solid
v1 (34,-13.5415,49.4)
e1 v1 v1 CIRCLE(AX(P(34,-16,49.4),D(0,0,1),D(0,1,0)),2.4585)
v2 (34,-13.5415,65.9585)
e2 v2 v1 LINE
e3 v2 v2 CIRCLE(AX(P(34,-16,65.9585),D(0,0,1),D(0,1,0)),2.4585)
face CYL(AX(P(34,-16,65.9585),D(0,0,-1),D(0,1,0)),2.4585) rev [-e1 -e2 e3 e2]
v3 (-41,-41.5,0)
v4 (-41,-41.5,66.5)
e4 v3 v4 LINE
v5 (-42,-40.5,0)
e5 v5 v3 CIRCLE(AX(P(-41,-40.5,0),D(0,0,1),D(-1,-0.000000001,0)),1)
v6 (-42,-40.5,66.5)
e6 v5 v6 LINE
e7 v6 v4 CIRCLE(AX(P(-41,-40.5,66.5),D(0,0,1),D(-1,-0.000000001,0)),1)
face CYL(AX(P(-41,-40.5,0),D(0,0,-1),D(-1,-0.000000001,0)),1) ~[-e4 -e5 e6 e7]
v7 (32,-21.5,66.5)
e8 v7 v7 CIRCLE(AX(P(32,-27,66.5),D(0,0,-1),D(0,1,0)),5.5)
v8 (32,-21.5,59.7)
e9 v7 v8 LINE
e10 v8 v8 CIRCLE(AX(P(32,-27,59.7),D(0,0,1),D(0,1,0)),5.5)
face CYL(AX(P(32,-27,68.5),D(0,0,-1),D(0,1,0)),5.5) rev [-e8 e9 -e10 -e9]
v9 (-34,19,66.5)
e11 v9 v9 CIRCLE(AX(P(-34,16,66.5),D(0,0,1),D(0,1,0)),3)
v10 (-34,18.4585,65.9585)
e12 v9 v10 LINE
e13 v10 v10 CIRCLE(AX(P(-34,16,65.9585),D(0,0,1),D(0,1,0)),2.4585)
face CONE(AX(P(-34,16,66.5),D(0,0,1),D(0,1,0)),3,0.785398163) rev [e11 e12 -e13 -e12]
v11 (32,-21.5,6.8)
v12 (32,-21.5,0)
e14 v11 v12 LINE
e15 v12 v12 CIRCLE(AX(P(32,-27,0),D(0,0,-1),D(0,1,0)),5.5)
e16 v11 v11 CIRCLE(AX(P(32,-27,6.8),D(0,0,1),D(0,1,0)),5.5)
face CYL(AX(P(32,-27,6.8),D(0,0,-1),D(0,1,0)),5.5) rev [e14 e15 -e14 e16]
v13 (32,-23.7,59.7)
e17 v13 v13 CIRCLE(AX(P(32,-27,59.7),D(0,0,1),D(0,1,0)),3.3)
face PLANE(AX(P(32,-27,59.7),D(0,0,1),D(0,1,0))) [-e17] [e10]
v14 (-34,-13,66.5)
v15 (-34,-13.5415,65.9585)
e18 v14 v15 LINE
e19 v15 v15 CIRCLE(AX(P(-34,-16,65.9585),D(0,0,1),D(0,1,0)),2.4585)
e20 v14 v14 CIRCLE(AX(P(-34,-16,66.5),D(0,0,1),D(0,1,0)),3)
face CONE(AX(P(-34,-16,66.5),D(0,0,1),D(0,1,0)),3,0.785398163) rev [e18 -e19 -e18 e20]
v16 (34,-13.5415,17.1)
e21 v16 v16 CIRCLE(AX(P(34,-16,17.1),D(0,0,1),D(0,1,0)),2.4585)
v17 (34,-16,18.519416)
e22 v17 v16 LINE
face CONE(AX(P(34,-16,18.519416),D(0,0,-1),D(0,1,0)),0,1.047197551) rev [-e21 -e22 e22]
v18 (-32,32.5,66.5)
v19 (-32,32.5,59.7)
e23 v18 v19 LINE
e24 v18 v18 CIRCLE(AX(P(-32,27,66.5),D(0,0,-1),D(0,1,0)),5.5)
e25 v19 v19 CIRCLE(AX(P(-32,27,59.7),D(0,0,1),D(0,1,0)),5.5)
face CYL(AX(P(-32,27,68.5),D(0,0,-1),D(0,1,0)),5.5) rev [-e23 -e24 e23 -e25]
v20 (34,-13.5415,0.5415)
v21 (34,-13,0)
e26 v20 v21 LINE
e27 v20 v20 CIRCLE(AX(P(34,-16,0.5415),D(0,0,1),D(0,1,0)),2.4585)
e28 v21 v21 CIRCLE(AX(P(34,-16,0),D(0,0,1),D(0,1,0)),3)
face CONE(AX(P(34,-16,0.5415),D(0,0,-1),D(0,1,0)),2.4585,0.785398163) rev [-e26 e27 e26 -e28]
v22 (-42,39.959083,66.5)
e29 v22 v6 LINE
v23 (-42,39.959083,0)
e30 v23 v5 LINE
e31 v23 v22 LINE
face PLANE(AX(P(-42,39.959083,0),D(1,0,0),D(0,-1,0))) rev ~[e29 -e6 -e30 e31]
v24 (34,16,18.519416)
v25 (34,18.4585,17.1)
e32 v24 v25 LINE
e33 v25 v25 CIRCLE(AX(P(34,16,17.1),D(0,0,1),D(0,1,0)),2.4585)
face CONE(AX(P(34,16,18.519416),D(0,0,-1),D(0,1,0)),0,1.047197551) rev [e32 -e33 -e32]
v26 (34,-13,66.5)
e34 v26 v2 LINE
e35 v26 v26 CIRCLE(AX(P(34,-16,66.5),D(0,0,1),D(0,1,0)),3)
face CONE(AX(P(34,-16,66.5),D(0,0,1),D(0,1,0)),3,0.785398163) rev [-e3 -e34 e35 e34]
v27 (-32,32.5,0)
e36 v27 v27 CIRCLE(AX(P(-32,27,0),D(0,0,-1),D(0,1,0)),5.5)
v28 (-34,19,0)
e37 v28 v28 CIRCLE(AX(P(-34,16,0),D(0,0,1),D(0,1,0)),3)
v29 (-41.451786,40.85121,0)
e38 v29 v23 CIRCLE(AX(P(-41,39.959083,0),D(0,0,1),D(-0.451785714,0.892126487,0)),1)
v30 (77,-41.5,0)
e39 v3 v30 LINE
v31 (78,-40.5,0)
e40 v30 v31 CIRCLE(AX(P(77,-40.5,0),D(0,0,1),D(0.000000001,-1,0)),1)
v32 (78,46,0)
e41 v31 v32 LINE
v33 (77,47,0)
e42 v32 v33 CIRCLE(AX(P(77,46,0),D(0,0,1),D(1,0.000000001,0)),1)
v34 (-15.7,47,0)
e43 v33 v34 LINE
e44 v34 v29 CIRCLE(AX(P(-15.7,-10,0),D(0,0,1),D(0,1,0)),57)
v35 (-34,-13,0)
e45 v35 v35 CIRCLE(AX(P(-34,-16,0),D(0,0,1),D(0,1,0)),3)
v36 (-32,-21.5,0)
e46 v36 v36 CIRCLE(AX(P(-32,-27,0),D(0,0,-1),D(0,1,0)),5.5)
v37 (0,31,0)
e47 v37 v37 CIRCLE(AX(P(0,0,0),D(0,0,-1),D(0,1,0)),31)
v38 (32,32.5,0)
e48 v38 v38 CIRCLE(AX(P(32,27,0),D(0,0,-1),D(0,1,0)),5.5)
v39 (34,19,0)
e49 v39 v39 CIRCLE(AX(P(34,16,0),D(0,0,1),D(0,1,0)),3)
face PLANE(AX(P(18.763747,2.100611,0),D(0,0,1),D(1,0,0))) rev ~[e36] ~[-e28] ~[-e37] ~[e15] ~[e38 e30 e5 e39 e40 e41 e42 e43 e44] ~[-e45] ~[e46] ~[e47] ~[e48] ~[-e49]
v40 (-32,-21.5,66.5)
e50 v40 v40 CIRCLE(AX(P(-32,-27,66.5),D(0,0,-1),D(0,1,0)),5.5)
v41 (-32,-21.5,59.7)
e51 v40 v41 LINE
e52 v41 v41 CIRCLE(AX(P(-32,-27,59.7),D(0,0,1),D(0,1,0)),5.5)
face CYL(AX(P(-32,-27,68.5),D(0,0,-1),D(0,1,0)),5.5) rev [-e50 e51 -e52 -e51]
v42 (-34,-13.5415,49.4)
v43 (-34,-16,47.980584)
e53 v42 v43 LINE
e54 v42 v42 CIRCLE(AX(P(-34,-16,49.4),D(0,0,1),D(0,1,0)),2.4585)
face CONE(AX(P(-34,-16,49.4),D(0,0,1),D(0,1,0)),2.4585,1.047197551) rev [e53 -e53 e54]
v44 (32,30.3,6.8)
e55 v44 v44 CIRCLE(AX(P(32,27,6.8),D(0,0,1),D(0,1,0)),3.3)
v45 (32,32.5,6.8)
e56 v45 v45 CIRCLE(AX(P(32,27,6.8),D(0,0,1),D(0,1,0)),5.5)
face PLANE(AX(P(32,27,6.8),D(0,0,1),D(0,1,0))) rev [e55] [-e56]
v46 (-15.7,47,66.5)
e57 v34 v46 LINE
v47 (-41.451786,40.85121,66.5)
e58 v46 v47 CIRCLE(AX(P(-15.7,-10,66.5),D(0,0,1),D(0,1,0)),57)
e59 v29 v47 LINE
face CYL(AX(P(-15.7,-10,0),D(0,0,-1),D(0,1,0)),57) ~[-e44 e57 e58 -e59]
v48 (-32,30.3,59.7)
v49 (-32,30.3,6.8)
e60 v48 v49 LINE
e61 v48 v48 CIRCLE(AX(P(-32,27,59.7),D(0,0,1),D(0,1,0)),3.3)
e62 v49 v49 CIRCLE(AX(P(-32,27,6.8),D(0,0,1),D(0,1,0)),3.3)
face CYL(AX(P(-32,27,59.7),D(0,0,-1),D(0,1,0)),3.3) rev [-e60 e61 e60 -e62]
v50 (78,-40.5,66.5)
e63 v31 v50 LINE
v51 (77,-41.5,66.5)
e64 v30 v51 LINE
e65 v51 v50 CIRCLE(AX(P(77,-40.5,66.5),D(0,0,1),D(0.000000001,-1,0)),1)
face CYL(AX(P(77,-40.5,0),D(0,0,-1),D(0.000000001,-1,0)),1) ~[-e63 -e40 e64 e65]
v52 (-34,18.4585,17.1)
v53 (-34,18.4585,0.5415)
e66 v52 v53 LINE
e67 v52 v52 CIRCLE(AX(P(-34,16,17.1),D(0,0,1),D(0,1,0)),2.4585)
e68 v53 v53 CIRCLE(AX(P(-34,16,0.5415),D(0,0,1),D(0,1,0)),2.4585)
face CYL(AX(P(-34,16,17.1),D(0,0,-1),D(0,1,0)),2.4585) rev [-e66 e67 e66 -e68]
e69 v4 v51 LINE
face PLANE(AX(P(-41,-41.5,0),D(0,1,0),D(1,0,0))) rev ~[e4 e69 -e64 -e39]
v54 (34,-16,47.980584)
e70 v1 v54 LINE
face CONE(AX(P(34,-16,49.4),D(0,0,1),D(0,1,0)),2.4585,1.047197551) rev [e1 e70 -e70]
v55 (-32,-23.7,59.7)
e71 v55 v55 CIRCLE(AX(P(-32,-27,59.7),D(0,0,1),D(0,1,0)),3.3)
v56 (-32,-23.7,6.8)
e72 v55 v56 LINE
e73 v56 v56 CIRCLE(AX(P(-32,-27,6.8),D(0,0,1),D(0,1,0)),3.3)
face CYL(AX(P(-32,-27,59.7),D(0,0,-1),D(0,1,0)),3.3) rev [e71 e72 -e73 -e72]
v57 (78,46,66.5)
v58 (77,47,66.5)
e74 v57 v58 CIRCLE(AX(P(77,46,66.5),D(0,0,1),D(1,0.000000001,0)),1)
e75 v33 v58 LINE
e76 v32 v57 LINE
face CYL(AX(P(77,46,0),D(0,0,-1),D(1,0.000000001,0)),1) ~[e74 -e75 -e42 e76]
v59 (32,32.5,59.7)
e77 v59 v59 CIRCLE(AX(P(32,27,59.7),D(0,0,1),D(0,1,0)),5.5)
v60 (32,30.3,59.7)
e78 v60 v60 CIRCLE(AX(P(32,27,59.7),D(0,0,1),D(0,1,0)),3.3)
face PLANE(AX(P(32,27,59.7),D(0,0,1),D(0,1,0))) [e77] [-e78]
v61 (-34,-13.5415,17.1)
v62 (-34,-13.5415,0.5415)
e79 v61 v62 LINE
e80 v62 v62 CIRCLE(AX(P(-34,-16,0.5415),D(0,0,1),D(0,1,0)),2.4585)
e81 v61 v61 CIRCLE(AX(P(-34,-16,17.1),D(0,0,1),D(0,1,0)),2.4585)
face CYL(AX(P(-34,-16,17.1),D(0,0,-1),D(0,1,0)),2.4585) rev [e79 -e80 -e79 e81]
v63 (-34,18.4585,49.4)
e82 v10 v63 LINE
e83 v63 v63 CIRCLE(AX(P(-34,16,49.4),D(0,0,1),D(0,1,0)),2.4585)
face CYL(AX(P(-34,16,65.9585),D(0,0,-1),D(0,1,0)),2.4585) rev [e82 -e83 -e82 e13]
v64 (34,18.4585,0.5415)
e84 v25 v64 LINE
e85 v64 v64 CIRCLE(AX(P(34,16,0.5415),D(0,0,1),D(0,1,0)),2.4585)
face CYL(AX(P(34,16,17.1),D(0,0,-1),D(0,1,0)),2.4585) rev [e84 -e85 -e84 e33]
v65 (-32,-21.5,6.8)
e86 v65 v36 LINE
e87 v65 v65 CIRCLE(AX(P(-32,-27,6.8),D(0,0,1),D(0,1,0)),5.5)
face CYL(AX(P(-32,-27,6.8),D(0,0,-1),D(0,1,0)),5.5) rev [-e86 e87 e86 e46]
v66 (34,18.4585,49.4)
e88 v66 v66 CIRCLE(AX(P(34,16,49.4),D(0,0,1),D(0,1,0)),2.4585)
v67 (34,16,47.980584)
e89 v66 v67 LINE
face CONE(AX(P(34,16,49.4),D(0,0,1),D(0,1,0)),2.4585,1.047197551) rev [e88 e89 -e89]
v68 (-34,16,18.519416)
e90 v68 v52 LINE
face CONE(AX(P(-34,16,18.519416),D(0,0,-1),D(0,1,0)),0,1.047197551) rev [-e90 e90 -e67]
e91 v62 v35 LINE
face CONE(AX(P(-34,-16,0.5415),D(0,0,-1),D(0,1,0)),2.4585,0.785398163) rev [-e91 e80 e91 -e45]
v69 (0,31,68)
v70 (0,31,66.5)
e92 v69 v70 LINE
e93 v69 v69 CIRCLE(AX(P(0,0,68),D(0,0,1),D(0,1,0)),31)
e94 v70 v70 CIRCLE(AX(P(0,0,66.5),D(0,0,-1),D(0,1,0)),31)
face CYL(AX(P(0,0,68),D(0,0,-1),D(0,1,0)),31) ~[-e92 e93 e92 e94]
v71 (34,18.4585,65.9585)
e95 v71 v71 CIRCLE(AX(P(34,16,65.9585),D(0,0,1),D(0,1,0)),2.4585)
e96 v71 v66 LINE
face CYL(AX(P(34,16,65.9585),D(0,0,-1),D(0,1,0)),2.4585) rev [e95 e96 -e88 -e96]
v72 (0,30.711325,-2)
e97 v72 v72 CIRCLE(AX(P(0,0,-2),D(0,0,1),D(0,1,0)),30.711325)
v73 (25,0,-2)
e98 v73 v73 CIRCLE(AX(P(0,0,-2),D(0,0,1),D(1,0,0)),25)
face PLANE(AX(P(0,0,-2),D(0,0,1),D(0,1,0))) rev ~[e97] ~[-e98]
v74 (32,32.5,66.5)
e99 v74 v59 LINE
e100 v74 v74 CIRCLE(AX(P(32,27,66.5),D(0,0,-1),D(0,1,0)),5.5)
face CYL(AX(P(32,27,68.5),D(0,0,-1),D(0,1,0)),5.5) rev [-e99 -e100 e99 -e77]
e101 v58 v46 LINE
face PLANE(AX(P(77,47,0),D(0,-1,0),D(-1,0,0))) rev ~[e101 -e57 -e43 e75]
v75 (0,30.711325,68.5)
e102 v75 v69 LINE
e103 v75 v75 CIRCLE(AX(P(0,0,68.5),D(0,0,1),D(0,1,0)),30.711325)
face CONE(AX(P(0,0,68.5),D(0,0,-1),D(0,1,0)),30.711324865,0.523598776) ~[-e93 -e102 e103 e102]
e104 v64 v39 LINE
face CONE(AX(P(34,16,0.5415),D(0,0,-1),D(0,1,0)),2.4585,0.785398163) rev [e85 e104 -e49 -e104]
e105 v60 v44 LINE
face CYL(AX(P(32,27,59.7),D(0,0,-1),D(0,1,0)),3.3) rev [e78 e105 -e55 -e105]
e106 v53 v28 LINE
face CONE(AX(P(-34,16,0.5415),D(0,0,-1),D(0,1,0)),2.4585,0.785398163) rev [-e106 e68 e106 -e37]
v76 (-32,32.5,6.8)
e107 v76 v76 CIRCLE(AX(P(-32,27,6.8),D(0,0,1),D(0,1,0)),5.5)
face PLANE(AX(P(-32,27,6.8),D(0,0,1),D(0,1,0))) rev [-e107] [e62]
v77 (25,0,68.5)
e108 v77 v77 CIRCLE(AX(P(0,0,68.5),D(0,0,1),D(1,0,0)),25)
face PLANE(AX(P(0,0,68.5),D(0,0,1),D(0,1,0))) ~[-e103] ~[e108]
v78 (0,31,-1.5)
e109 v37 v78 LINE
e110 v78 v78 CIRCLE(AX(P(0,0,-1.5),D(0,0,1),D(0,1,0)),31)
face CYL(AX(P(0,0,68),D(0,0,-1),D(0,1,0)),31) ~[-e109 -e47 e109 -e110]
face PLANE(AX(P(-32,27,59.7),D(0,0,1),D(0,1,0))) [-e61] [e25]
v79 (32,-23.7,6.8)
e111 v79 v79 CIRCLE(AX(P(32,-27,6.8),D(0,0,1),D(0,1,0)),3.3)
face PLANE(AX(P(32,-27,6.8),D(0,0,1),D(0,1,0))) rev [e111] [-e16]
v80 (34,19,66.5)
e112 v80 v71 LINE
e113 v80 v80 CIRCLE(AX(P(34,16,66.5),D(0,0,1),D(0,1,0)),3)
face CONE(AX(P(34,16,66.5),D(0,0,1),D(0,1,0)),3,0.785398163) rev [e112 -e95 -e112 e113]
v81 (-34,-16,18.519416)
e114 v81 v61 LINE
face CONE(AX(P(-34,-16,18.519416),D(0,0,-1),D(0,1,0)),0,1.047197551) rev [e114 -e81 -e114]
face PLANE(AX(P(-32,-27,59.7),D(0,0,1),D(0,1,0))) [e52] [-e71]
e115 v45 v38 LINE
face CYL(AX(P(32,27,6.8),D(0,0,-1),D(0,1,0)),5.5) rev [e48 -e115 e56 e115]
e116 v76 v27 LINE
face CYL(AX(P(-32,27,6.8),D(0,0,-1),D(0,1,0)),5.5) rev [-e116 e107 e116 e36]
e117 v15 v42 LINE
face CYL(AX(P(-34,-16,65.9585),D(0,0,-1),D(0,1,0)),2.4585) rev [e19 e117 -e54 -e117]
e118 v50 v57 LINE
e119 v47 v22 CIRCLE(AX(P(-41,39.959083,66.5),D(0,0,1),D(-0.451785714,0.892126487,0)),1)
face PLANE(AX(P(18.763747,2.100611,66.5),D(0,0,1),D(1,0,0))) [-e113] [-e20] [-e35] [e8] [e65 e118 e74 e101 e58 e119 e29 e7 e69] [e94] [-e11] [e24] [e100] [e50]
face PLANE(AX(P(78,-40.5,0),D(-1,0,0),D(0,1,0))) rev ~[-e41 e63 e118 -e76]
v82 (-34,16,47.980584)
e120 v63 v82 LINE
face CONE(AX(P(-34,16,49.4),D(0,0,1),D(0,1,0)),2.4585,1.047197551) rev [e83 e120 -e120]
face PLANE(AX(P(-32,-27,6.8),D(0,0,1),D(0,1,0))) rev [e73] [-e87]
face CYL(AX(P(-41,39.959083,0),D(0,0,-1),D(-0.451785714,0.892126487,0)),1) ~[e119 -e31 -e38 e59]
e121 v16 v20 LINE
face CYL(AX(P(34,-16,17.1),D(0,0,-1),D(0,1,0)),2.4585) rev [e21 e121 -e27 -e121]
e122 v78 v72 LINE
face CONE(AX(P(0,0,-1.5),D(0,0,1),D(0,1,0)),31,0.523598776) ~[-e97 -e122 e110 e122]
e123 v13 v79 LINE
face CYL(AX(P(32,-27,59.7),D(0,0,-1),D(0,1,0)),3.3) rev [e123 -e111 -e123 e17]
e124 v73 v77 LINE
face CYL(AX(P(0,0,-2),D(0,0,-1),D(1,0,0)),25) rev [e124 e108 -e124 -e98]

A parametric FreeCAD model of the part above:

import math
import FreeCAD as App
import Part
import Sketcher
Q = App.Units.Quantity


def add_polygon(sketch, points):
    """Adds a closed chain of lines whose ends are joined by coincident constraints."""
    first, n = sketch.GeometryCount, len(points)
    for a, b in zip(points, points[1:] + points[:1]):
        sketch.addGeometry(Part.LineSegment(App.Vector(*a, 0), App.Vector(*b, 0)), False)
    for i in range(n):
        sketch.addConstraint(Sketcher.Constraint("Coincident", first + i, 2, first + (i + 1) % n, 1))

doc = App.newDocument("Part")
body = doc.addObject("PartDesign::Body", "Body")

# Sketch on XY plane
sketch1 = doc.addObject("Sketcher::SketchObject", "Sketch")
body.addObject(sketch1)
sketch1.AttachmentSupport = (doc.XY_Plane, [""])
sketch1.MapMode = "FlatFace"
sketch1.addGeometry(Part.LineSegment(App.Vector(-42, 40, 0), App.Vector(-42, -40.5, 0)), False)
sketch1.addGeometry(Part.ArcOfCircle(Part.Circle(App.Vector(-41, -40.5, 0), App.Vector(0, 0, 1), 1), math.radians(-180), math.radians(-90)), False)
sketch1.addGeometry(Part.LineSegment(App.Vector(-41, -41.5, 0), App.Vector(77, -41.5, 0)), False)
sketch1.addGeometry(Part.ArcOfCircle(Part.Circle(App.Vector(77, -40.5, 0), App.Vector(0, 0, 1), 1), math.radians(-90), math.radians(0)), False)
sketch1.addGeometry(Part.LineSegment(App.Vector(78, -40.5, 0), App.Vector(78, 46, 0)), False)
sketch1.addGeometry(Part.ArcOfCircle(Part.Circle(App.Vector(77, 46, 0), App.Vector(0, 0, 1), 1), math.radians(0), math.radians(90)), False)
sketch1.addGeometry(Part.LineSegment(App.Vector(77, 47, 0), App.Vector(-15.7, 47, 0)), False)
sketch1.addGeometry(Part.ArcOfCircle(Part.Circle(App.Vector(-15.7, -10, 0), App.Vector(0, 0, 1), 57), math.radians(90), math.radians(117)), False)
sketch1.addGeometry(Part.ArcOfCircle(Part.Circle(App.Vector(-41, 40, 0), App.Vector(0, 0, 1), 1), math.radians(117), math.radians(180)), False)
sketch1.addConstraint(Sketcher.Constraint("Tangent", 0, 2, 1, 1))
sketch1.addConstraint(Sketcher.Constraint("Tangent", 1, 2, 2, 1))
sketch1.addConstraint(Sketcher.Constraint("Tangent", 2, 2, 3, 1))
sketch1.addConstraint(Sketcher.Constraint("Tangent", 3, 2, 4, 1))
sketch1.addConstraint(Sketcher.Constraint("Tangent", 4, 2, 5, 1))
sketch1.addConstraint(Sketcher.Constraint("Tangent", 5, 2, 6, 1))
sketch1.addConstraint(Sketcher.Constraint("Tangent", 6, 2, 7, 1))
sketch1.addConstraint(Sketcher.Constraint("Tangent", 7, 2, 8, 1))
sketch1.addConstraint(Sketcher.Constraint("Tangent", 8, 2, 0, 1))
sketch1.addConstraint(Sketcher.Constraint("Vertical", 0))
sketch1.addConstraint(Sketcher.Constraint("Horizontal", 2))
sketch1.addConstraint(Sketcher.Constraint("Vertical", 4))
sketch1.addConstraint(Sketcher.Constraint("Horizontal", 6))
sketch1.addConstraint(Sketcher.Constraint("Equal", 1, 3))
sketch1.addConstraint(Sketcher.Constraint("Equal", 3, 5))
sketch1.addConstraint(Sketcher.Constraint("Equal", 5, 8))
sketch1.addConstraint(Sketcher.Constraint("Radius", 1, Q("1 mm")))
sketch1.addConstraint(Sketcher.Constraint("Radius", 7, Q("57 mm")))
sketch1.addConstraint(Sketcher.Constraint("DistanceX", 2, 1, 2, 2, Q("118 mm")))
sketch1.addConstraint(Sketcher.Constraint("DistanceX", 6, 2, 6, 1, Q("92.7 mm")))
sketch1.addConstraint(Sketcher.Constraint("DistanceY", 4, 1, 4, 2, Q("86.5 mm")))
sketch1.addConstraint(Sketcher.Constraint("DistanceX", 1, 3, -1, 1, Q("41 mm")))
sketch1.addConstraint(Sketcher.Constraint("DistanceY", -1, 1, 5, 3, Q("46 mm")))
pad1 = doc.addObject("PartDesign::Pad", "Pad")
body.addObject(pad1)
pad1.Profile = sketch1
pad1.Length = 66.5

# Sketch on YZ plane
sketch2 = doc.addObject("Sketcher::SketchObject", "Sketch001")
body.addObject(sketch2)
sketch2.AttachmentSupport = (doc.YZ_Plane, [""])
sketch2.MapMode = "FlatFace"
add_polygon(sketch2, [(30.7, 68.5), (0, 68.5), (0, -2), (30.7, -2), (31, -1.5), (31, 68)])  # lines 0-5
sketch2.addConstraint(Sketcher.Constraint("Horizontal", 0))
sketch2.addConstraint(Sketcher.Constraint("Vertical", 1))
sketch2.addConstraint(Sketcher.Constraint("Horizontal", 2))
sketch2.addConstraint(Sketcher.Constraint("Vertical", 4))
sketch2.addConstraint(Sketcher.Constraint("PointOnObject", 0, 2, -2))
sketch2.addConstraint(Sketcher.Constraint("Vertical", 2, 2, 5, 2))
sketch2.addConstraint(Sketcher.Constraint("Equal", 3, 5))
sketch2.addConstraint(Sketcher.Constraint("Angle", 3, Q("60 deg")))
sketch2.addConstraint(Sketcher.Constraint("DistanceY", 1, 2, 1, 1, Q("70.5 mm")))
sketch2.addConstraint(Sketcher.Constraint("DistanceY", 4, 1, 4, 2, Q("69.5 mm")))
sketch2.addConstraint(Sketcher.Constraint("DistanceY", 1, 2, -1, 1, Q("2 mm")))
sketch2.addConstraint(Sketcher.Constraint("DistanceX", -1, 1, 3, 2, Q("31 mm")))
revolution = doc.addObject("PartDesign::Revolution", "Revolution")
body.addObject(revolution)
revolution.Profile = sketch2
revolution.ReferenceAxis = (sketch2, ["V_Axis"])
revolution.Angle = 360

# Sketch on XY plane
sketch3 = doc.addObject("Sketcher::SketchObject", "Sketch002")
body.addObject(sketch3)
sketch3.AttachmentSupport = (doc.XY_Plane, [""])
sketch3.MapMode = "FlatFace"
sketch3.AttachmentOffset = App.Placement(App.Vector(0, 0, -2), App.Rotation())
sketch3.addGeometry(Part.Circle(App.Vector(0, 0, 0), App.Vector(0, 0, 1), 25), False)
sketch3.addConstraint(Sketcher.Constraint("Coincident", 0, 3, -1, 1))
sketch3.addConstraint(Sketcher.Constraint("Diameter", 0, Q("50 mm")))
pocket1 = doc.addObject("PartDesign::Pocket", "Pocket")
body.addObject(pocket1)
pocket1.Profile = sketch3
pocket1.Length = 70.5
pocket1.Reversed = True

# Sketch on YZ plane
sketch4 = doc.addObject("Sketcher::SketchObject", "Sketch003")
body.addObject(sketch4)
sketch4.AttachmentSupport = (doc.YZ_Plane, [""])
sketch4.MapMode = "FlatFace"
sketch4.AttachmentOffset = App.Placement(App.Vector(0, 0, -32), App.Rotation())
add_polygon(sketch4, [(32.5, 68.5), (27, 68.5), (27, -2), (32.5, -2), (32.5, 6.8), (30.3, 6.8), (30.3, 59.7), (32.5, 59.7)])  # lines 0-7
sketch4.addGeometry(Part.LineSegment(App.Vector(27, -2, 0), App.Vector(27, 68.5, 0)), True)  # axis
sketch4.addConstraint(Sketcher.Constraint("Horizontal", 0))
sketch4.addConstraint(Sketcher.Constraint("Vertical", 1))
sketch4.addConstraint(Sketcher.Constraint("Horizontal", 2))
sketch4.addConstraint(Sketcher.Constraint("Vertical", 3))
sketch4.addConstraint(Sketcher.Constraint("Horizontal", 4))
sketch4.addConstraint(Sketcher.Constraint("Vertical", 5))
sketch4.addConstraint(Sketcher.Constraint("Horizontal", 6))
sketch4.addConstraint(Sketcher.Constraint("Vertical", 7))
sketch4.addConstraint(Sketcher.Constraint("Vertical", 8))
sketch4.addConstraint(Sketcher.Constraint("Coincident", 8, 1, 1, 2))
sketch4.addConstraint(Sketcher.Constraint("Horizontal", 7, 2, 8, 2))
sketch4.addConstraint(Sketcher.Constraint("Vertical", 3, 2, 6, 2))
sketch4.addConstraint(Sketcher.Constraint("Equal", 3, 7))
sketch4.addConstraint(Sketcher.Constraint("DistanceX", 0, 2, 0, 1, Q("5.5 mm")))
sketch4.addConstraint(Sketcher.Constraint("DistanceX", 4, 2, 4, 1, Q("2.2 mm")))
sketch4.addConstraint(Sketcher.Constraint("DistanceY", 1, 2, 1, 1, Q("70.5 mm")))
sketch4.addConstraint(Sketcher.Constraint("DistanceY", 3, 1, 3, 2, Q("8.8 mm")))
sketch4.addConstraint(Sketcher.Constraint("DistanceX", -1, 1, 0, 2, Q("27 mm")))
sketch4.addConstraint(Sketcher.Constraint("DistanceY", 1, 2, -1, 1, Q("2 mm")))
groove = doc.addObject("PartDesign::Groove", "Groove")
body.addObject(groove)
groove.Profile = sketch4
groove.ReferenceAxis = (sketch4, ["Axis0"])
groove.Angle = 360

# Sketch on YZ plane
sketch5 = doc.addObject("Sketcher::SketchObject", "Sketch004")
body.addObject(sketch5)
sketch5.AttachmentSupport = (doc.YZ_Plane, [""])
sketch5.MapMode = "FlatFace"
sketch5.AttachmentOffset = App.Placement(App.Vector(0, 0, -32), App.Rotation())
add_polygon(sketch5, [(-21.5, 68.5), (-27, 68.5), (-27, -2), (-21.5, -2), (-21.5, 6.8), (-23.7, 6.8), (-23.7, 59.7), (-21.5, 59.7)])  # lines 0-7
sketch5.addGeometry(Part.LineSegment(App.Vector(-27, -2, 0), App.Vector(-27, 68.5, 0)), True)  # axis
sketch5.addConstraint(Sketcher.Constraint("Horizontal", 0))
sketch5.addConstraint(Sketcher.Constraint("Vertical", 1))
sketch5.addConstraint(Sketcher.Constraint("Horizontal", 2))
sketch5.addConstraint(Sketcher.Constraint("Vertical", 3))
sketch5.addConstraint(Sketcher.Constraint("Horizontal", 4))
sketch5.addConstraint(Sketcher.Constraint("Vertical", 5))
sketch5.addConstraint(Sketcher.Constraint("Horizontal", 6))
sketch5.addConstraint(Sketcher.Constraint("Vertical", 7))
sketch5.addConstraint(Sketcher.Constraint("Vertical", 8))
sketch5.addConstraint(Sketcher.Constraint("Coincident", 8, 1, 1, 2))
sketch5.addConstraint(Sketcher.Constraint("Horizontal", 7, 2, 8, 2))
sketch5.addConstraint(Sketcher.Constraint("Vertical", 3, 2, 6, 2))
sketch5.addConstraint(Sketcher.Constraint("Equal", 3, 7))
sketch5.addConstraint(Sketcher.Constraint("DistanceX", 0, 2, 0, 1, Q("5.5 mm")))
sketch5.addConstraint(Sketcher.Constraint("DistanceX", 4, 2, 4, 1, Q("2.2 mm")))
sketch5.addConstraint(Sketcher.Constraint("DistanceY", 1, 2, 1, 1, Q("70.5 mm")))
sketch5.addConstraint(Sketcher.Constraint("DistanceY", 3, 1, 3, 2, Q("8.8 mm")))
sketch5.addConstraint(Sketcher.Constraint("DistanceX", 0, 2, -1, 1, Q("27 mm")))
sketch5.addConstraint(Sketcher.Constraint("DistanceY", 1, 2, -1, 1, Q("2 mm")))
groove2 = doc.addObject("PartDesign::Groove", "Groove001")
body.addObject(groove2)
groove2.Profile = sketch5
groove2.ReferenceAxis = (sketch5, ["Axis0"])
groove2.Angle = 360

# Sketch on YZ plane
sketch6 = doc.addObject("Sketcher::SketchObject", "Sketch005")
body.addObject(sketch6)
sketch6.AttachmentSupport = (doc.YZ_Plane, [""])
sketch6.MapMode = "FlatFace"
sketch6.AttachmentOffset = App.Placement(App.Vector(0, 0, 32), App.Rotation())
add_polygon(sketch6, [(-21.5, 68.5), (-27, 68.5), (-27, -2), (-21.5, -2), (-21.5, 6.8), (-23.7, 6.8), (-23.7, 59.7), (-21.5, 59.7)])  # lines 0-7
sketch6.addGeometry(Part.LineSegment(App.Vector(-27, -2, 0), App.Vector(-27, 68.5, 0)), True)  # axis
sketch6.addConstraint(Sketcher.Constraint("Horizontal", 0))
sketch6.addConstraint(Sketcher.Constraint("Vertical", 1))
sketch6.addConstraint(Sketcher.Constraint("Horizontal", 2))
sketch6.addConstraint(Sketcher.Constraint("Vertical", 3))
sketch6.addConstraint(Sketcher.Constraint("Horizontal", 4))
sketch6.addConstraint(Sketcher.Constraint("Vertical", 5))
sketch6.addConstraint(Sketcher.Constraint("Horizontal", 6))
sketch6.addConstraint(Sketcher.Constraint("Vertical", 7))
sketch6.addConstraint(Sketcher.Constraint("Vertical", 8))
sketch6.addConstraint(Sketcher.Constraint("Coincident", 8, 1, 1, 2))
sketch6.addConstraint(Sketcher.Constraint("Horizontal", 7, 2, 8, 2))
sketch6.addConstraint(Sketcher.Constraint("Vertical", 3, 2, 6, 2))
sketch6.addConstraint(Sketcher.Constraint("Equal", 3, 7))
sketch6.addConstraint(Sketcher.Constraint("DistanceX", 0, 2, 0, 1, Q("5.5 mm")))
sketch6.addConstraint(Sketcher.Constraint("DistanceX", 4, 2, 4, 1, Q("2.2 mm")))
sketch6.addConstraint(Sketcher.Constraint("DistanceY", 1, 2, 1, 1, Q("70.5 mm")))
sketch6.addConstraint(Sketcher.Constraint("DistanceY", 3, 1, 3, 2, Q("8.8 mm")))
sketch6.addConstraint(Sketcher.Constraint("DistanceX", 0, 2, -1, 1, Q("27 mm")))
sketch6.addConstraint(Sketcher.Constraint("DistanceY", 1, 2, -1, 1, Q("2 mm")))
groove3 = doc.addObject("PartDesign::Groove", "Groove002")
body.addObject(groove3)
groove3.Profile = sketch6
groove3.ReferenceAxis = (sketch6, ["Axis0"])
groove3.Angle = 360

# Sketch on YZ plane
sketch7 = doc.addObject("Sketcher::SketchObject", "Sketch006")
body.addObject(sketch7)
sketch7.AttachmentSupport = (doc.YZ_Plane, [""])
sketch7.MapMode = "FlatFace"
sketch7.AttachmentOffset = App.Placement(App.Vector(0, 0, 32), App.Rotation())
add_polygon(sketch7, [(32.5, 68.5), (27, 68.5), (27, -2), (32.5, -2), (32.5, 6.8), (30.3, 6.8), (30.3, 59.7), (32.5, 59.7)])  # lines 0-7
sketch7.addGeometry(Part.LineSegment(App.Vector(27, -2, 0), App.Vector(27, 68.5, 0)), True)  # axis
sketch7.addConstraint(Sketcher.Constraint("Horizontal", 0))
sketch7.addConstraint(Sketcher.Constraint("Vertical", 1))
sketch7.addConstraint(Sketcher.Constraint("Horizontal", 2))
sketch7.addConstraint(Sketcher.Constraint("Vertical", 3))
sketch7.addConstraint(Sketcher.Constraint("Horizontal", 4))
sketch7.addConstraint(Sketcher.Constraint("Vertical", 5))
sketch7.addConstraint(Sketcher.Constraint("Horizontal", 6))
sketch7.addConstraint(Sketcher.Constraint("Vertical", 7))
sketch7.addConstraint(Sketcher.Constraint("Vertical", 8))
sketch7.addConstraint(Sketcher.Constraint("Coincident", 8, 1, 1, 2))
sketch7.addConstraint(Sketcher.Constraint("Horizontal", 7, 2, 8, 2))
sketch7.addConstraint(Sketcher.Constraint("Vertical", 3, 2, 6, 2))
sketch7.addConstraint(Sketcher.Constraint("Equal", 3, 7))
sketch7.addConstraint(Sketcher.Constraint("DistanceX", 0, 2, 0, 1, Q("5.5 mm")))
sketch7.addConstraint(Sketcher.Constraint("DistanceX", 4, 2, 4, 1, Q("2.2 mm")))
sketch7.addConstraint(Sketcher.Constraint("DistanceY", 1, 2, 1, 1, Q("70.5 mm")))
sketch7.addConstraint(Sketcher.Constraint("DistanceY", 3, 1, 3, 2, Q("8.8 mm")))
sketch7.addConstraint(Sketcher.Constraint("DistanceX", -1, 1, 0, 2, Q("27 mm")))
sketch7.addConstraint(Sketcher.Constraint("DistanceY", 1, 2, -1, 1, Q("2 mm")))
groove4 = doc.addObject("PartDesign::Groove", "Groove003")
body.addObject(groove4)
groove4.Profile = sketch7
groove4.ReferenceAxis = (sketch7, ["Axis0"])
groove4.Angle = 360

# Sketch on YZ plane
sketch8 = doc.addObject("Sketcher::SketchObject", "Sketch007")
body.addObject(sketch8)
sketch8.AttachmentSupport = (doc.YZ_Plane, [""])
sketch8.MapMode = "FlatFace"
sketch8.AttachmentOffset = App.Placement(App.Vector(0, 0, 34), App.Rotation())
add_polygon(sketch8, [(18.5, 17.1), (16, 18.5), (16, 0), (19, 0), (18.5, 0.5)])  # lines 0-4
sketch8.addGeometry(Part.LineSegment(App.Vector(16, 0, 0), App.Vector(16, 18.5, 0)), True)  # axis
sketch8.addConstraint(Sketcher.Constraint("Vertical", 1))
sketch8.addConstraint(Sketcher.Constraint("Horizontal", 2))
sketch8.addConstraint(Sketcher.Constraint("Vertical", 4))
sketch8.addConstraint(Sketcher.Constraint("Vertical", 5))
sketch8.addConstraint(Sketcher.Constraint("Coincident", 5, 1, 1, 2))
sketch8.addConstraint(Sketcher.Constraint("PointOnObject", 1, 2, -1))
sketch8.addConstraint(Sketcher.Constraint("Equal", 1, 5))
sketch8.addConstraint(Sketcher.Constraint("DistanceX", 2, 1, 2, 2, Q("3 mm")))
sketch8.addConstraint(Sketcher.Constraint("Angle", 0, Q("150 deg")))
sketch8.addConstraint(Sketcher.Constraint("Angle", 3, Q("135 deg")))
sketch8.addConstraint(Sketcher.Constraint("DistanceX", -1, 1, 0, 2, Q("16 mm")))
sketch8.addConstraint(Sketcher.Constraint("DistanceY", -1, 1, 4, 2, Q("17.1 mm")))
sketch8.addConstraint(Sketcher.Constraint("DistanceY", 4, 1, 4, 2, Q("16.5585 mm")))
groove5 = doc.addObject("PartDesign::Groove", "Groove004")
body.addObject(groove5)
groove5.Profile = sketch8
groove5.ReferenceAxis = (sketch8, ["Axis0"])
groove5.Angle = 360

# Sketch on YZ plane
sketch9 = doc.addObject("Sketcher::SketchObject", "Sketch008")
body.addObject(sketch9)
sketch9.AttachmentSupport = (doc.YZ_Plane, [""])
sketch9.MapMode = "FlatFace"
sketch9.AttachmentOffset = App.Placement(App.Vector(0, 0, 34), App.Rotation())
add_polygon(sketch9, [(-13.5, 17.1), (-16, 18.5), (-16, 0), (-13, 0), (-13.5, 0.5)])  # lines 0-4
sketch9.addGeometry(Part.LineSegment(App.Vector(-16, 0, 0), App.Vector(-16, 18.5, 0)), True)  # axis
sketch9.addConstraint(Sketcher.Constraint("Vertical", 1))
sketch9.addConstraint(Sketcher.Constraint("Horizontal", 2))
sketch9.addConstraint(Sketcher.Constraint("Vertical", 4))
sketch9.addConstraint(Sketcher.Constraint("Vertical", 5))
sketch9.addConstraint(Sketcher.Constraint("Coincident", 5, 1, 1, 2))
sketch9.addConstraint(Sketcher.Constraint("PointOnObject", 1, 2, -1))
sketch9.addConstraint(Sketcher.Constraint("Equal", 1, 5))
sketch9.addConstraint(Sketcher.Constraint("DistanceX", 2, 1, 2, 2, Q("3 mm")))
sketch9.addConstraint(Sketcher.Constraint("Angle", 0, Q("150 deg")))
sketch9.addConstraint(Sketcher.Constraint("Angle", 3, Q("135 deg")))
sketch9.addConstraint(Sketcher.Constraint("DistanceX", 0, 2, -1, 1, Q("16 mm")))
sketch9.addConstraint(Sketcher.Constraint("DistanceY", -1, 1, 4, 2, Q("17.1 mm")))
sketch9.addConstraint(Sketcher.Constraint("DistanceY", 4, 1, 4, 2, Q("16.5585 mm")))
groove6 = doc.addObject("PartDesign::Groove", "Groove005")
body.addObject(groove6)
groove6.Profile = sketch9
groove6.ReferenceAxis = (sketch9, ["Axis0"])
groove6.Angle = 360

# Sketch on YZ plane
sketch10 = doc.addObject("Sketcher::SketchObject", "Sketch009")
body.addObject(sketch10)
sketch10.AttachmentSupport = (doc.YZ_Plane, [""])
sketch10.MapMode = "FlatFace"
sketch10.AttachmentOffset = App.Placement(App.Vector(0, 0, -34), App.Rotation())
add_polygon(sketch10, [(18.5, 17.1), (16, 18.5), (16, 0), (19, 0), (18.5, 0.5)])  # lines 0-4
sketch10.addGeometry(Part.LineSegment(App.Vector(16, 0, 0), App.Vector(16, 18.5, 0)), True)  # axis
sketch10.addConstraint(Sketcher.Constraint("Vertical", 1))
sketch10.addConstraint(Sketcher.Constraint("Horizontal", 2))
sketch10.addConstraint(Sketcher.Constraint("Vertical", 4))
sketch10.addConstraint(Sketcher.Constraint("Vertical", 5))
sketch10.addConstraint(Sketcher.Constraint("Coincident", 5, 1, 1, 2))
sketch10.addConstraint(Sketcher.Constraint("PointOnObject", 1, 2, -1))
sketch10.addConstraint(Sketcher.Constraint("Equal", 1, 5))
sketch10.addConstraint(Sketcher.Constraint("DistanceX", 2, 1, 2, 2, Q("3 mm")))
sketch10.addConstraint(Sketcher.Constraint("Angle", 0, Q("150 deg")))
sketch10.addConstraint(Sketcher.Constraint("Angle", 3, Q("135 deg")))
sketch10.addConstraint(Sketcher.Constraint("DistanceX", -1, 1, 0, 2, Q("16 mm")))
sketch10.addConstraint(Sketcher.Constraint("DistanceY", -1, 1, 4, 2, Q("17.1 mm")))
sketch10.addConstraint(Sketcher.Constraint("DistanceY", 4, 1, 4, 2, Q("16.5585 mm")))
groove7 = doc.addObject("PartDesign::Groove", "Groove006")
body.addObject(groove7)
groove7.Profile = sketch10
groove7.ReferenceAxis = (sketch10, ["Axis0"])
groove7.Angle = 360

# Sketch on YZ plane
sketch11 = doc.addObject("Sketcher::SketchObject", "Sketch010")
body.addObject(sketch11)
sketch11.AttachmentSupport = (doc.YZ_Plane, [""])
sketch11.MapMode = "FlatFace"
sketch11.AttachmentOffset = App.Placement(App.Vector(0, 0, -34), App.Rotation())
add_polygon(sketch11, [(-13.5, 17.1), (-16, 18.5), (-16, 0), (-13, 0), (-13.5, 0.5)])  # lines 0-4
sketch11.addGeometry(Part.LineSegment(App.Vector(-16, 0, 0), App.Vector(-16, 18.5, 0)), True)  # axis
sketch11.addConstraint(Sketcher.Constraint("Vertical", 1))
sketch11.addConstraint(Sketcher.Constraint("Horizontal", 2))
sketch11.addConstraint(Sketcher.Constraint("Vertical", 4))
sketch11.addConstraint(Sketcher.Constraint("Vertical", 5))
sketch11.addConstraint(Sketcher.Constraint("Coincident", 5, 1, 1, 2))
sketch11.addConstraint(Sketcher.Constraint("PointOnObject", 1, 2, -1))
sketch11.addConstraint(Sketcher.Constraint("Equal", 1, 5))
sketch11.addConstraint(Sketcher.Constraint("DistanceX", 2, 1, 2, 2, Q("3 mm")))
sketch11.addConstraint(Sketcher.Constraint("Angle", 0, Q("150 deg")))
sketch11.addConstraint(Sketcher.Constraint("Angle", 3, Q("135 deg")))
sketch11.addConstraint(Sketcher.Constraint("DistanceX", 0, 2, -1, 1, Q("16 mm")))
sketch11.addConstraint(Sketcher.Constraint("DistanceY", -1, 1, 4, 2, Q("17.1 mm")))
sketch11.addConstraint(Sketcher.Constraint("DistanceY", 4, 1, 4, 2, Q("16.5585 mm")))
groove8 = doc.addObject("PartDesign::Groove", "Groove007")
body.addObject(groove8)
groove8.Profile = sketch11
groove8.ReferenceAxis = (sketch11, ["Axis0"])
groove8.Angle = 360

# Sketch on YZ plane
sketch12 = doc.addObject("Sketcher::SketchObject", "Sketch011")
body.addObject(sketch12)
sketch12.AttachmentSupport = (doc.YZ_Plane, [""])
sketch12.MapMode = "FlatFace"
sketch12.AttachmentOffset = App.Placement(App.Vector(0, 0, -34), App.Rotation())
add_polygon(sketch12, [(19, 66.5), (16, 66.5), (16, 48), (18.5, 49.4), (18.5, 66)])  # lines 0-4
sketch12.addGeometry(Part.LineSegment(App.Vector(16, 48, 0), App.Vector(16, 66.5, 0)), True)  # axis
sketch12.addConstraint(Sketcher.Constraint("Horizontal", 0))
sketch12.addConstraint(Sketcher.Constraint("Vertical", 1))
sketch12.addConstraint(Sketcher.Constraint("Vertical", 3))
sketch12.addConstraint(Sketcher.Constraint("Vertical", 5))
sketch12.addConstraint(Sketcher.Constraint("Coincident", 5, 1, 1, 2))
sketch12.addConstraint(Sketcher.Constraint("Horizontal", 4, 2, 5, 2))
sketch12.addConstraint(Sketcher.Constraint("DistanceX", 0, 2, 0, 1, Q("3 mm")))
sketch12.addConstraint(Sketcher.Constraint("Angle", 2, Q("30 deg")))
sketch12.addConstraint(Sketcher.Constraint("Angle", 4, Q("45 deg")))
sketch12.addConstraint(Sketcher.Constraint("DistanceX", -1, 1, 0, 2, Q("16 mm")))
sketch12.addConstraint(Sketcher.Constraint("DistanceY", -1, 1, 0, 2, Q("66.5 mm")))
sketch12.addConstraint(Sketcher.Constraint("DistanceY", -1, 1, 2, 2, Q("49.4 mm")))
sketch12.addConstraint(Sketcher.Constraint("DistanceY", 3, 1, 3, 2, Q("16.5585 mm")))
groove9 = doc.addObject("PartDesign::Groove", "Groove008")
body.addObject(groove9)
groove9.Profile = sketch12
groove9.ReferenceAxis = (sketch12, ["Axis0"])
groove9.Angle = 360

# Sketch on YZ plane
sketch13 = doc.addObject("Sketcher::SketchObject", "Sketch012")
body.addObject(sketch13)
sketch13.AttachmentSupport = (doc.YZ_Plane, [""])
sketch13.MapMode = "FlatFace"
sketch13.AttachmentOffset = App.Placement(App.Vector(0, 0, -34), App.Rotation())
add_polygon(sketch13, [(-13, 66.5), (-16, 66.5), (-16, 48), (-13.5, 49.4), (-13.5, 66)])  # lines 0-4
sketch13.addGeometry(Part.LineSegment(App.Vector(-16, 48, 0), App.Vector(-16, 66.5, 0)), True)  # axis
sketch13.addConstraint(Sketcher.Constraint("Horizontal", 0))
sketch13.addConstraint(Sketcher.Constraint("Vertical", 1))
sketch13.addConstraint(Sketcher.Constraint("Vertical", 3))
sketch13.addConstraint(Sketcher.Constraint("Vertical", 5))
sketch13.addConstraint(Sketcher.Constraint("Coincident", 5, 1, 1, 2))
sketch13.addConstraint(Sketcher.Constraint("Horizontal", 4, 2, 5, 2))
sketch13.addConstraint(Sketcher.Constraint("DistanceX", 0, 2, 0, 1, Q("3 mm")))
sketch13.addConstraint(Sketcher.Constraint("Angle", 2, Q("30 deg")))
sketch13.addConstraint(Sketcher.Constraint("Angle", 4, Q("45 deg")))
sketch13.addConstraint(Sketcher.Constraint("DistanceX", 0, 2, -1, 1, Q("16 mm")))
sketch13.addConstraint(Sketcher.Constraint("DistanceY", -1, 1, 0, 2, Q("66.5 mm")))
sketch13.addConstraint(Sketcher.Constraint("DistanceY", -1, 1, 2, 2, Q("49.4 mm")))
sketch13.addConstraint(Sketcher.Constraint("DistanceY", 3, 1, 3, 2, Q("16.5585 mm")))
groove10 = doc.addObject("PartDesign::Groove", "Groove009")
body.addObject(groove10)
groove10.Profile = sketch13
groove10.ReferenceAxis = (sketch13, ["Axis0"])
groove10.Angle = 360

# Sketch on YZ plane
sketch14 = doc.addObject("Sketcher::SketchObject", "Sketch013")
body.addObject(sketch14)
sketch14.AttachmentSupport = (doc.YZ_Plane, [""])
sketch14.MapMode = "FlatFace"
sketch14.AttachmentOffset = App.Placement(App.Vector(0, 0, 34), App.Rotation())
add_polygon(sketch14, [(19, 66.5), (16, 66.5), (16, 48), (18.5, 49.4), (18.5, 66)])  # lines 0-4
sketch14.addGeometry(Part.LineSegment(App.Vector(16, 48, 0), App.Vector(16, 66.5, 0)), True)  # axis
sketch14.addConstraint(Sketcher.Constraint("Horizontal", 0))
sketch14.addConstraint(Sketcher.Constraint("Vertical", 1))
sketch14.addConstraint(Sketcher.Constraint("Vertical", 3))
sketch14.addConstraint(Sketcher.Constraint("Vertical", 5))
sketch14.addConstraint(Sketcher.Constraint("Coincident", 5, 1, 1, 2))
sketch14.addConstraint(Sketcher.Constraint("Horizontal", 4, 2, 5, 2))
sketch14.addConstraint(Sketcher.Constraint("DistanceX", 0, 2, 0, 1, Q("3 mm")))
sketch14.addConstraint(Sketcher.Constraint("Angle", 2, Q("30 deg")))
sketch14.addConstraint(Sketcher.Constraint("Angle", 4, Q("45 deg")))
sketch14.addConstraint(Sketcher.Constraint("DistanceX", -1, 1, 0, 2, Q("16 mm")))
sketch14.addConstraint(Sketcher.Constraint("DistanceY", -1, 1, 0, 2, Q("66.5 mm")))
sketch14.addConstraint(Sketcher.Constraint("DistanceY", -1, 1, 2, 2, Q("49.4 mm")))
sketch14.addConstraint(Sketcher.Constraint("DistanceY", 3, 1, 3, 2, Q("16.5585 mm")))
groove11 = doc.addObject("PartDesign::Groove", "Groove010")
body.addObject(groove11)
groove11.Profile = sketch14
groove11.ReferenceAxis = (sketch14, ["Axis0"])
groove11.Angle = 360

# Sketch on YZ plane
sketch15 = doc.addObject("Sketcher::SketchObject", "Sketch014")
body.addObject(sketch15)
sketch15.AttachmentSupport = (doc.YZ_Plane, [""])
sketch15.MapMode = "FlatFace"
sketch15.AttachmentOffset = App.Placement(App.Vector(0, 0, 34), App.Rotation())
add_polygon(sketch15, [(-13, 66.5), (-16, 66.5), (-16, 48), (-13.5, 49.4), (-13.5, 66)])  # lines 0-4
sketch15.addGeometry(Part.LineSegment(App.Vector(-16, 48, 0), App.Vector(-16, 66.5, 0)), True)  # axis
sketch15.addConstraint(Sketcher.Constraint("Horizontal", 0))
sketch15.addConstraint(Sketcher.Constraint("Vertical", 1))
sketch15.addConstraint(Sketcher.Constraint("Vertical", 3))
sketch15.addConstraint(Sketcher.Constraint("Vertical", 5))
sketch15.addConstraint(Sketcher.Constraint("Coincident", 5, 1, 1, 2))
sketch15.addConstraint(Sketcher.Constraint("Horizontal", 4, 2, 5, 2))
sketch15.addConstraint(Sketcher.Constraint("DistanceX", 0, 2, 0, 1, Q("3 mm")))
sketch15.addConstraint(Sketcher.Constraint("Angle", 2, Q("30 deg")))
sketch15.addConstraint(Sketcher.Constraint("Angle", 4, Q("45 deg")))
sketch15.addConstraint(Sketcher.Constraint("DistanceX", 0, 2, -1, 1, Q("16 mm")))
sketch15.addConstraint(Sketcher.Constraint("DistanceY", -1, 1, 0, 2, Q("66.5 mm")))
sketch15.addConstraint(Sketcher.Constraint("DistanceY", -1, 1, 2, 2, Q("49.4 mm")))
sketch15.addConstraint(Sketcher.Constraint("DistanceY", 3, 1, 3, 2, Q("16.5585 mm")))
groove12 = doc.addObject("PartDesign::Groove", "Groove011")
body.addObject(groove12)
groove12.Profile = sketch15
groove12.ReferenceAxis = (sketch15, ["Axis0"])
groove12.Angle = 360

doc.recompute()
